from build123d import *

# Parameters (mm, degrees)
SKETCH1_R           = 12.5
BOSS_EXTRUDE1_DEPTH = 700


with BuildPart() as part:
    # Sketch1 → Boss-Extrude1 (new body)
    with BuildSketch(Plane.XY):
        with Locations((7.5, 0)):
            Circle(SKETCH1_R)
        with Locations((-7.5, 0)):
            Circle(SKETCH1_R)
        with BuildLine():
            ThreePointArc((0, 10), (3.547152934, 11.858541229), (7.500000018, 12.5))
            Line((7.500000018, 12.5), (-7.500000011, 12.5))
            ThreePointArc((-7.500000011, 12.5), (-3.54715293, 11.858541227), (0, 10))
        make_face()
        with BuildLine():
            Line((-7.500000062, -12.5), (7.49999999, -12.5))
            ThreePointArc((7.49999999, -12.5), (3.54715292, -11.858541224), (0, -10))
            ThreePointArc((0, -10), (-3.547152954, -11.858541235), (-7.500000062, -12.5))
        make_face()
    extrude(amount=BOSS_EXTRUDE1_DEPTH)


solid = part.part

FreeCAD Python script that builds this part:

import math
import FreeCAD as App
import Part
import Sketcher

V = App.Vector

doc = App.newDocument("Part")
body = doc.addObject("PartDesign::Body", "Body")

# Sketch on XY plane
sketch1 = doc.addObject("Sketcher::SketchObject", "Sketch")
body.addObject(sketch1)
sketch1.AttachmentSupport = (doc.XY_Plane, [""])
sketch1.MapMode = "FlatFace"
sketch1.addGeometry([
    Part.ArcOfCircle(Part.Circle(V(7.5, 0, 0), V(0, 0, 1), 12.5), math.radians(-90), math.radians(90)),
    Part.LineSegment(V(7.5, 12.5, 0), V(-7.5, 12.5, 0)),
    Part.ArcOfCircle(Part.Circle(V(-7.5, 0, 0), V(0, 0, 1), 12.5), math.radians(90), math.radians(270)),
    Part.LineSegment(V(-7.5, -12.5, 0), V(7.5, -12.5, 0)),
], False)
sketch1.addConstraint([
    Sketcher.Constraint("Tangent", 0, 2, 1, 1),
    Sketcher.Constraint("Tangent", 1, 2, 2, 1),
    Sketcher.Constraint("Tangent", 2, 2, 3, 1),
    Sketcher.Constraint("Tangent", 3, 2, 0, 1),
    Sketcher.Constraint("Horizontal", 1),
    Sketcher.Constraint("Horizontal", 3),
    Sketcher.Constraint("Symmetric", 0, 3, 2, 3, -1, 1),
    Sketcher.Constraint("Radius", 0, 12.5),
    Sketcher.Constraint("DistanceX", 1, 2, 1, 1, 15.0),
])
pad1 = doc.addObject("PartDesign::Pad", "Pad")
body.addObject(pad1)
pad1.Profile = sketch1
pad1.Length = 700

doc.recompute()
